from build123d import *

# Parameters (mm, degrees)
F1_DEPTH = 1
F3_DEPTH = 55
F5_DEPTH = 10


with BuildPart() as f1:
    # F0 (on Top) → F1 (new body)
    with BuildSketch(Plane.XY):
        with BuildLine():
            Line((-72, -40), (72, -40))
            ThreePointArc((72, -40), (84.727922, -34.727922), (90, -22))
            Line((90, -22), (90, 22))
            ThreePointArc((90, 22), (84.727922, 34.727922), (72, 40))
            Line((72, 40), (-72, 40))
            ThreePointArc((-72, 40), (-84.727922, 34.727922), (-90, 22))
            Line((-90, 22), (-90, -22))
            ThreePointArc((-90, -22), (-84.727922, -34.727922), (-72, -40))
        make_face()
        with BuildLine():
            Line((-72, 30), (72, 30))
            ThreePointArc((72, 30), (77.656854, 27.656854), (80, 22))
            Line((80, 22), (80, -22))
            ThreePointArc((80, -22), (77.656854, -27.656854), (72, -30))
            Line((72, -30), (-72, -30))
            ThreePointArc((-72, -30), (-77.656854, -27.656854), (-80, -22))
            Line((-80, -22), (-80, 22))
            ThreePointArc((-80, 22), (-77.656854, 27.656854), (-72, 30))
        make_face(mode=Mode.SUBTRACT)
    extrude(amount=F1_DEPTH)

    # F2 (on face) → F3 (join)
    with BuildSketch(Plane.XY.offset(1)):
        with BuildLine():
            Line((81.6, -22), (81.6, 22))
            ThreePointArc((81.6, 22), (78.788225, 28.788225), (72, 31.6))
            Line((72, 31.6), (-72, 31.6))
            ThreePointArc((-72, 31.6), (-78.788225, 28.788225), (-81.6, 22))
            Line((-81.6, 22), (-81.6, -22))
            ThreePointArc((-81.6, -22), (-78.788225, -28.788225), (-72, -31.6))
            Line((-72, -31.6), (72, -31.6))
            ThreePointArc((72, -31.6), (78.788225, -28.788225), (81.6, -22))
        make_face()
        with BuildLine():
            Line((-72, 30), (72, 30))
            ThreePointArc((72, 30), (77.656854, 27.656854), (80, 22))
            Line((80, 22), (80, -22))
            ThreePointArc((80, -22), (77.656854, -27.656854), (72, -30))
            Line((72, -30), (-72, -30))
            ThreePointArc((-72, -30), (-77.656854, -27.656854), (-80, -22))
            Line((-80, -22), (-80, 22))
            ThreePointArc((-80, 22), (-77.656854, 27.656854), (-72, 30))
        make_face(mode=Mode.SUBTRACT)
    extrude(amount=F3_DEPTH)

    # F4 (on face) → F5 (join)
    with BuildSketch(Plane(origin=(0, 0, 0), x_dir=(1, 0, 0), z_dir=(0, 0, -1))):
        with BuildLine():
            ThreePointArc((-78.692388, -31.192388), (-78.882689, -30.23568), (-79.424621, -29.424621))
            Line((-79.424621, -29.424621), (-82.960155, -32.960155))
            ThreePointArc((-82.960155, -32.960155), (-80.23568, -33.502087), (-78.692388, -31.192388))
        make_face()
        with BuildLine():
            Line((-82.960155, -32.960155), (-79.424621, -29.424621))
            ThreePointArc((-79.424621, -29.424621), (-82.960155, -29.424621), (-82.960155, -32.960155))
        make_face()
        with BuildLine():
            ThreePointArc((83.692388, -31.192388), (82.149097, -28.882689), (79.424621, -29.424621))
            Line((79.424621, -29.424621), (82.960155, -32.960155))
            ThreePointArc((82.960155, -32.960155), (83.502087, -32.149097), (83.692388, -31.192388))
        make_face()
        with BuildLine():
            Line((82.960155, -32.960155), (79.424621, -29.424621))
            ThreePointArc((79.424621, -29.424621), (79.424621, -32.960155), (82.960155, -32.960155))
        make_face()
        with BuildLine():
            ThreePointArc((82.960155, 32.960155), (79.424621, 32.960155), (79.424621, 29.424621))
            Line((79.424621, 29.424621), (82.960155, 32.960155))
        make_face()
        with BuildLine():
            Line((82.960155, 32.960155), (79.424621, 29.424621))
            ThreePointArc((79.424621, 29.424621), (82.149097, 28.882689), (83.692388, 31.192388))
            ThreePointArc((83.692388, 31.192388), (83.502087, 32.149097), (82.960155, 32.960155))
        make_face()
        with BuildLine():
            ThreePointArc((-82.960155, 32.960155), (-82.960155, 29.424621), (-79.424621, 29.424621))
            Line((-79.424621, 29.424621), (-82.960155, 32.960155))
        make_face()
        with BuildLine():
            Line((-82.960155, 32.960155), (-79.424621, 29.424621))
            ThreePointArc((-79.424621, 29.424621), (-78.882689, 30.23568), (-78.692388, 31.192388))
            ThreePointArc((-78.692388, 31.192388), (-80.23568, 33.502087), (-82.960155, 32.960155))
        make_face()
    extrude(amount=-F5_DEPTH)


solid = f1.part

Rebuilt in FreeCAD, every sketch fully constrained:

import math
import FreeCAD as App
import Part
import Sketcher
Q = App.Units.Quantity

doc = App.newDocument("Part")
body = doc.addObject("PartDesign::Body", "Body")

sketch1 = body.newObject("Sketcher::SketchObject", "Sketch")
sketch1.AttachmentSupport = (doc.getObject("XY_Plane"), [""])
sketch1.MapMode = "FlatFace"
sketch1.addGeometry(Part.LineSegment(App.Vector(-72, -40, 0), App.Vector(72, -40, 0)), False)
sketch1.addGeometry(Part.ArcOfCircle(Part.Circle(App.Vector(72, -22, 0), App.Vector(0, 0, 1), 18), math.radians(-90), math.radians(0)), False)
sketch1.addGeometry(Part.LineSegment(App.Vector(90, -22, 0), App.Vector(90, 22, 0)), False)
sketch1.addGeometry(Part.ArcOfCircle(Part.Circle(App.Vector(72, 22, 0), App.Vector(0, 0, 1), 18), math.radians(0), math.radians(90)), False)
sketch1.addGeometry(Part.LineSegment(App.Vector(72, 40, 0), App.Vector(-72, 40, 0)), False)
sketch1.addGeometry(Part.ArcOfCircle(Part.Circle(App.Vector(-72, 22, 0), App.Vector(0, 0, 1), 18), math.radians(90), math.radians(180)), False)
sketch1.addGeometry(Part.LineSegment(App.Vector(-90, 22, 0), App.Vector(-90, -22, 0)), False)
sketch1.addGeometry(Part.ArcOfCircle(Part.Circle(App.Vector(-72, -22, 0), App.Vector(0, 0, 1), 18), math.radians(-180), math.radians(-90)), False)
sketch1.addGeometry(Part.ArcOfCircle(Part.Circle(App.Vector(-72, 22, 0), App.Vector(0, 0, 1), 8), math.radians(90), math.radians(180)), False)
sketch1.addGeometry(Part.LineSegment(App.Vector(-72, 30, 0), App.Vector(72, 30, 0)), False)
sketch1.addGeometry(Part.ArcOfCircle(Part.Circle(App.Vector(72, 22, 0), App.Vector(0, 0, 1), 8), math.radians(0), math.radians(90)), False)
sketch1.addGeometry(Part.LineSegment(App.Vector(80, 22, 0), App.Vector(80, -22, 0)), False)
sketch1.addGeometry(Part.ArcOfCircle(Part.Circle(App.Vector(72, -22, 0), App.Vector(0, 0, 1), 8), math.radians(-90), math.radians(0)), False)
sketch1.addGeometry(Part.LineSegment(App.Vector(72, -30, 0), App.Vector(-72, -30, 0)), False)
sketch1.addGeometry(Part.ArcOfCircle(Part.Circle(App.Vector(-72, -22, 0), App.Vector(0, 0, 1), 8), math.radians(-180), math.radians(-90)), False)
sketch1.addGeometry(Part.LineSegment(App.Vector(-80, -22, 0), App.Vector(-80, 22, 0)), False)
sketch1.addConstraint(Sketcher.Constraint("Tangent", 0, 2, 1, 1))
sketch1.addConstraint(Sketcher.Constraint("Tangent", 1, 2, 2, 1))
sketch1.addConstraint(Sketcher.Constraint("Tangent", 2, 2, 3, 1))
sketch1.addConstraint(Sketcher.Constraint("Tangent", 3, 2, 4, 1))
sketch1.addConstraint(Sketcher.Constraint("Tangent", 4, 2, 5, 1))
sketch1.addConstraint(Sketcher.Constraint("Tangent", 5, 2, 6, 1))
sketch1.addConstraint(Sketcher.Constraint("Tangent", 6, 2, 7, 1))
sketch1.addConstraint(Sketcher.Constraint("Tangent", 7, 2, 0, 1))
sketch1.addConstraint(Sketcher.Constraint("Tangent", 8, 1, 9, 1))
sketch1.addConstraint(Sketcher.Constraint("Tangent", 9, 2, 10, 2))
sketch1.addConstraint(Sketcher.Constraint("Tangent", 10, 1, 11, 1))
sketch1.addConstraint(Sketcher.Constraint("Tangent", 11, 2, 12, 2))
sketch1.addConstraint(Sketcher.Constraint("Tangent", 12, 1, 13, 1))
sketch1.addConstraint(Sketcher.Constraint("Tangent", 13, 2, 14, 2))
sketch1.addConstraint(Sketcher.Constraint("Tangent", 14, 1, 15, 1))
sketch1.addConstraint(Sketcher.Constraint("Tangent", 15, 2, 8, 2))
sketch1.addConstraint(Sketcher.Constraint("Horizontal", 0))
sketch1.addConstraint(Sketcher.Constraint("Vertical", 2))
sketch1.addConstraint(Sketcher.Constraint("Horizontal", 4))
sketch1.addConstraint(Sketcher.Constraint("Vertical", 6))
sketch1.addConstraint(Sketcher.Constraint("Horizontal", 9))
sketch1.addConstraint(Sketcher.Constraint("Vertical", 11))
sketch1.addConstraint(Sketcher.Constraint("Horizontal", 13))
sketch1.addConstraint(Sketcher.Constraint("Vertical", 15))
sketch1.addConstraint(Sketcher.Constraint("Coincident", 8, 3, 5, 3))
sketch1.addConstraint(Sketcher.Constraint("Coincident", 10, 3, 3, 3))
sketch1.addConstraint(Sketcher.Constraint("Coincident", 12, 3, 1, 3))
sketch1.addConstraint(Sketcher.Constraint("Equal", 1, 3))
sketch1.addConstraint(Sketcher.Constraint("Equal", 3, 5))
sketch1.addConstraint(Sketcher.Constraint("Equal", 5, 7))
sketch1.addConstraint(Sketcher.Constraint("Equal", 12, 14))
sketch1.addConstraint(Sketcher.Constraint("Symmetric", 1, 3, 5, 3, -1, 1))
sketch1.addConstraint(Sketcher.Constraint("Radius", 1, Q("18 mm")))
sketch1.addConstraint(Sketcher.Constraint("Radius", 8, Q("8.000001 mm")))
sketch1.addConstraint(Sketcher.Constraint("DistanceX", 0, 1, 0, 2, Q("144 mm")))
sketch1.addConstraint(Sketcher.Constraint("DistanceY", 2, 1, 2, 2, Q("44 mm")))
pad1 = body.newObject("PartDesign::Pad", "Pad")
pad1.Profile = sketch1
pad1.Length = 1

sketch2 = body.newObject("Sketcher::SketchObject", "Sketch001")
sketch2.AttachmentSupport = (doc.getObject("XY_Plane"), [""])
sketch2.MapMode = "FlatFace"
sketch2.AttachmentOffset = App.Placement(App.Vector(0, 0, 1), App.Rotation())
sketch2.addGeometry(Part.LineSegment(App.Vector(82, -22, 0), App.Vector(82, 22, 0)), False)
sketch2.addGeometry(Part.ArcOfCircle(Part.Circle(App.Vector(72, 22, 0), App.Vector(0, 0, 1), 10), math.radians(0), math.radians(90)), False)
sketch2.addGeometry(Part.LineSegment(App.Vector(72, 32, 0), App.Vector(-72, 32, 0)), False)
sketch2.addGeometry(Part.ArcOfCircle(Part.Circle(App.Vector(-72, 22, 0), App.Vector(0, 0, 1), 10), math.radians(90), math.radians(180)), False)
sketch2.addGeometry(Part.LineSegment(App.Vector(-82, 22, 0), App.Vector(-82, -22, 0)), False)
sketch2.addGeometry(Part.ArcOfCircle(Part.Circle(App.Vector(-72, -22, 0), App.Vector(0, 0, 1), 10), math.radians(-180), math.radians(-90)), False)
sketch2.addGeometry(Part.LineSegment(App.Vector(-72, -32, 0), App.Vector(72, -32, 0)), False)
sketch2.addGeometry(Part.ArcOfCircle(Part.Circle(App.Vector(72, -22, 0), App.Vector(0, 0, 1), 10), math.radians(-90), math.radians(0)), False)
sketch2.addGeometry(Part.ArcOfCircle(Part.Circle(App.Vector(-72, 22, 0), App.Vector(0, 0, 1), 8), math.radians(90), math.radians(180)), False)
sketch2.addGeometry(Part.LineSegment(App.Vector(-72, 30, 0), App.Vector(72, 30, 0)), False)
sketch2.addGeometry(Part.ArcOfCircle(Part.Circle(App.Vector(72, 22, 0), App.Vector(0, 0, 1), 8), math.radians(0), math.radians(90)), False)
sketch2.addGeometry(Part.LineSegment(App.Vector(80, 22, 0), App.Vector(80, -22, 0)), False)
sketch2.addGeometry(Part.ArcOfCircle(Part.Circle(App.Vector(72, -22, 0), App.Vector(0, 0, 1), 8), math.radians(-90), math.radians(0)), False)
sketch2.addGeometry(Part.LineSegment(App.Vector(72, -30, 0), App.Vector(-72, -30, 0)), False)
sketch2.addGeometry(Part.ArcOfCircle(Part.Circle(App.Vector(-72, -22, 0), App.Vector(0, 0, 1), 8), math.radians(-180), math.radians(-90)), False)
sketch2.addGeometry(Part.LineSegment(App.Vector(-80, -22, 0), App.Vector(-80, 22, 0)), False)
sketch2.addConstraint(Sketcher.Constraint("Tangent", 0, 2, 1, 1))
sketch2.addConstraint(Sketcher.Constraint("Tangent", 1, 2, 2, 1))
sketch2.addConstraint(Sketcher.Constraint("Tangent", 2, 2, 3, 1))
sketch2.addConstraint(Sketcher.Constraint("Tangent", 3, 2, 4, 1))
sketch2.addConstraint(Sketcher.Constraint("Tangent", 4, 2, 5, 1))
sketch2.addConstraint(Sketcher.Constraint("Tangent", 5, 2, 6, 1))
sketch2.addConstraint(Sketcher.Constraint("Tangent", 6, 2, 7, 1))
sketch2.addConstraint(Sketcher.Constraint("Tangent", 7, 2, 0, 1))
sketch2.addConstraint(Sketcher.Constraint("Tangent", 8, 1, 9, 1))
sketch2.addConstraint(Sketcher.Constraint("Tangent", 9, 2, 10, 2))
sketch2.addConstraint(Sketcher.Constraint("Tangent", 10, 1, 11, 1))
sketch2.addConstraint(Sketcher.Constraint("Tangent", 11, 2, 12, 2))
sketch2.addConstraint(Sketcher.Constraint("Tangent", 12, 1, 13, 1))
sketch2.addConstraint(Sketcher.Constraint("Tangent", 13, 2, 14, 2))
sketch2.addConstraint(Sketcher.Constraint("Tangent", 14, 1, 15, 1))
sketch2.addConstraint(Sketcher.Constraint("Tangent", 15, 2, 8, 2))
sketch2.addConstraint(Sketcher.Constraint("Vertical", 0))
sketch2.addConstraint(Sketcher.Constraint("Horizontal", 2))
sketch2.addConstraint(Sketcher.Constraint("Vertical", 4))
sketch2.addConstraint(Sketcher.Constraint("Horizontal", 6))
sketch2.addConstraint(Sketcher.Constraint("Horizontal", 9))
sketch2.addConstraint(Sketcher.Constraint("Vertical", 11))
sketch2.addConstraint(Sketcher.Constraint("Horizontal", 13))
sketch2.addConstraint(Sketcher.Constraint("Vertical", 15))
sketch2.addConstraint(Sketcher.Constraint("Coincident", 8, 3, 3, 3))
sketch2.addConstraint(Sketcher.Constraint("Coincident", 10, 3, 1, 3))
sketch2.addConstraint(Sketcher.Constraint("Coincident", 12, 3, 7, 3))
sketch2.addConstraint(Sketcher.Constraint("Equal", 1, 3))
sketch2.addConstraint(Sketcher.Constraint("Equal", 3, 5))
sketch2.addConstraint(Sketcher.Constraint("Equal", 5, 7))
sketch2.addConstraint(Sketcher.Constraint("Equal", 12, 14))
sketch2.addConstraint(Sketcher.Constraint("Symmetric", 1, 3, 5, 3, -1, 1))
sketch2.addConstraint(Sketcher.Constraint("Radius", 8, Q("8.000001 mm")))
sketch2.addConstraint(Sketcher.Constraint("Radius", 1, Q("9.6 mm")))
sketch2.addConstraint(Sketcher.Constraint("DistanceX", 2, 2, 2, 1, Q("144 mm")))
sketch2.addConstraint(Sketcher.Constraint("DistanceY", 0, 1, 0, 2, Q("44 mm")))
pad2 = body.newObject("PartDesign::Pad", "Pad001")
pad2.Profile = sketch2
pad2.Length = 55

sketch3 = body.newObject("Sketcher::SketchObject", "Sketch002")
sketch3.AttachmentSupport = (doc.getObject("XY_Plane"), [""])
sketch3.MapMode = "FlatFace"
sketch3.addGeometry(Part.ArcOfCircle(Part.Circle(App.Vector(-81.2, 31.2, 0), App.Vector(0, 0, 1), 2.5), math.radians(-45), math.radians(0)), False)
sketch3.addGeometry(Part.ArcOfCircle(Part.Circle(App.Vector(-81.2, 31.2, 0), App.Vector(0, 0, 1), 2.5), math.radians(135), math.radians(315)), False)
sketch3.addGeometry(Part.ArcOfCircle(Part.Circle(App.Vector(-81.2, 31.2, 0), App.Vector(0, 0, 1), 2.5), math.radians(0), math.radians(135)), False)
sketch3.addGeometry(Part.ArcOfCircle(Part.Circle(App.Vector(81.2, 31.2, 0), App.Vector(0, 0, 1), 2.5), math.radians(-135), math.radians(0)), False)
sketch3.addGeometry(Part.ArcOfCircle(Part.Circle(App.Vector(81.2, 31.2, 0), App.Vector(0, 0, 1), 2.5), math.radians(45), math.radians(225)), False)
sketch3.addGeometry(Part.ArcOfCircle(Part.Circle(App.Vector(81.2, 31.2, 0), App.Vector(0, 0, 1), 2.5), math.radians(0), math.radians(45)), False)
sketch3.addGeometry(Part.ArcOfCircle(Part.Circle(App.Vector(81.2, -31.2, 0), App.Vector(0, 0, 1), 2.5), math.radians(135), math.radians(315)), False)
sketch3.addGeometry(Part.ArcOfCircle(Part.Circle(App.Vector(81.2, -31.2, 0), App.Vector(0, 0, 1), 2.5), math.radians(0), math.radians(135)), False)
sketch3.addGeometry(Part.ArcOfCircle(Part.Circle(App.Vector(81.2, -31.2, 0), App.Vector(0, 0, 1), 2.5), math.radians(-45), math.radians(0)), False)
sketch3.addGeometry(Part.ArcOfCircle(Part.Circle(App.Vector(-81.2, -31.2, 0), App.Vector(0, 0, 1), 2.5), math.radians(45), math.radians(225)), False)
sketch3.addGeometry(Part.ArcOfCircle(Part.Circle(App.Vector(-81.2, -31.2, 0), App.Vector(0, 0, 1), 2.5), math.radians(0), math.radians(45)), False)
sketch3.addGeometry(Part.ArcOfCircle(Part.Circle(App.Vector(-81.2, -31.2, 0), App.Vector(0, 0, 1), 2.5), math.radians(-135), math.radians(0)), False)
sketch3.addConstraint(Sketcher.Constraint("Tangent", 0, 1, 1, 2))
sketch3.addConstraint(Sketcher.Constraint("Tangent", 1, 1, 2, 2))
sketch3.addConstraint(Sketcher.Constraint("Tangent", 2, 1, 0, 2))
sketch3.addConstraint(Sketcher.Constraint("Tangent", 3, 1, 4, 2))
sketch3.addConstraint(Sketcher.Constraint("Tangent", 4, 1, 5, 2))
sketch3.addConstraint(Sketcher.Constraint("Tangent", 5, 1, 3, 2))
sketch3.addConstraint(Sketcher.Constraint("Tangent", 6, 1, 7, 2))
sketch3.addConstraint(Sketcher.Constraint("Tangent", 7, 1, 8, 2))
sketch3.addConstraint(Sketcher.Constraint("Tangent", 8, 1, 6, 2))
sketch3.addConstraint(Sketcher.Constraint("Tangent", 9, 1, 10, 2))
sketch3.addConstraint(Sketcher.Constraint("Tangent", 10, 1, 11, 2))
sketch3.addConstraint(Sketcher.Constraint("Tangent", 11, 1, 9, 2))
sketch3.addConstraint(Sketcher.Constraint("Equal", 2, 3))
sketch3.addConstraint(Sketcher.Constraint("Equal", 4, 6))
sketch3.addConstraint(Sketcher.Constraint("Equal", 7, 9))
sketch3.addConstraint(Sketcher.Constraint("Symmetric", 0, 3, 6, 3, -1, 1))
sketch3.addConstraint(Sketcher.Constraint("Symmetric", 3, 3, 9, 3, -1, 1))
sketch3.addConstraint(Sketcher.Constraint("Symmetric", 0, 3, 3, 3, -2))
sketch3.addConstraint(Sketcher.Constraint("Horizontal", 5, 3, 2, 1))
sketch3.addConstraint(Sketcher.Constraint("Horizontal", 0, 1, 3, 1))
sketch3.addConstraint(Sketcher.Constraint("Horizontal", 1, 1, 4, 1))
sketch3.addConstraint(Sketcher.Constraint("Horizontal", 2, 1, 5, 1))
sketch3.addConstraint(Sketcher.Constraint("Horizontal", 11, 3, 7, 1))
sketch3.addConstraint(Sketcher.Constraint("Horizontal", 6, 1, 9, 1))
sketch3.addConstraint(Sketcher.Constraint("Horizontal", 7, 1, 10, 1))
sketch3.addConstraint(Sketcher.Constraint("Horizontal", 8, 1, 11, 1))
sketch3.addConstraint(Sketcher.Constraint("Vertical", 3, 1, 6, 1))
sketch3.addConstraint(Sketcher.Constraint("Vertical", 4, 1, 8, 1))
sketch3.addConstraint(Sketcher.Constraint("Radius", 0, Q("2.500001 mm")))
sketch3.addConstraint(Sketcher.Constraint("DistanceX", 0, 3, -1, 1, Q("81.192389 mm")))
sketch3.addConstraint(Sketcher.Constraint("DistanceY", -1, 1, 0, 3, Q("31.192388 mm")))
sketch3.addConstraint(Sketcher.Constraint("DistanceX", 0, 1, -1, 1, Q("79.424621 mm")))
sketch3.addConstraint(Sketcher.Constraint("DistanceX", 1, 1, -1, 1, Q("82.960155 mm")))
pad3 = body.newObject("PartDesign::Pad", "Pad002")
pad3.Profile = sketch3
pad3.Length = 10

doc.recompute()
